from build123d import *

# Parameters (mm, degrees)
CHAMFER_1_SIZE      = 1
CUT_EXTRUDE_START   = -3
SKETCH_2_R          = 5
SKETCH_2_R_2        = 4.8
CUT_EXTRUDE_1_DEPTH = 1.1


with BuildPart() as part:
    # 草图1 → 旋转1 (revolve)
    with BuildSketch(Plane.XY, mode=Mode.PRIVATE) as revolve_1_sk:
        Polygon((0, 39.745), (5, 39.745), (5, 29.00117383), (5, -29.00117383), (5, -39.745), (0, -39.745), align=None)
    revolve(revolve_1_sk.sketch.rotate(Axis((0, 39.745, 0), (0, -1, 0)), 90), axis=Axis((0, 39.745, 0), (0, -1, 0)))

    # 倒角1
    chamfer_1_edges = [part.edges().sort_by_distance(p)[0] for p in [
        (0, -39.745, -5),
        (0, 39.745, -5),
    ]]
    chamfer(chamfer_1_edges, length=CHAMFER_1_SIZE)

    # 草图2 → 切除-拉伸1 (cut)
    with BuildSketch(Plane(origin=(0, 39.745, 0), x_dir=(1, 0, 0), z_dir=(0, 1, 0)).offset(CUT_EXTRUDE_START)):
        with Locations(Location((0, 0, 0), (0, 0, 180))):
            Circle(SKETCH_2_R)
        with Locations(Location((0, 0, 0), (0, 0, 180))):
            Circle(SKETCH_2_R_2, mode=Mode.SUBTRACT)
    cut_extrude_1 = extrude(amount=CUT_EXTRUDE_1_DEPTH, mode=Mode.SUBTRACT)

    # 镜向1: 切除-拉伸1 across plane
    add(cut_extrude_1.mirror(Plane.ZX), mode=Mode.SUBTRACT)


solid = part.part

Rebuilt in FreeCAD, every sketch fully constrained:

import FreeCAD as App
import Part
import Sketcher
Q = App.Units.Quantity


def edges_at(feature, points):
    """Names of the edges that pass closest to the given points."""
    edges = feature.Shape.Edges
    near = lambda p: min(range(len(edges)), key=lambda i: edges[i].distToShape(Part.Vertex(*p))[0])
    return sorted({f"Edge{near(p) + 1}" for p in points})

doc = App.newDocument("Part")
body = doc.addObject("PartDesign::Body", "Body")

# Sketch on XY plane
sketch1 = body.newObject("Sketcher::SketchObject", "Sketch")
sketch1.AttachmentSupport = (doc.getObject("XY_Plane"), [""])
sketch1.MapMode = "FlatFace"
sketch1.addGeometry([
    Part.LineSegment(App.Vector(5, 40, 0), App.Vector(0, 40, 0)),
    Part.LineSegment(App.Vector(0, 40, 0), App.Vector(0, -40, 0)),
    Part.LineSegment(App.Vector(0, -40, 0), App.Vector(5, -40, 0)),
    Part.LineSegment(App.Vector(5, -40, 0), App.Vector(5, 40, 0)),
], False)
sketch1.addConstraint([
    Sketcher.Constraint("Coincident", 0, 2, 1, 1),
    Sketcher.Constraint("Coincident", 1, 2, 2, 1),
    Sketcher.Constraint("Coincident", 2, 2, 3, 1),
    Sketcher.Constraint("Coincident", 3, 2, 0, 1),
    Sketcher.Constraint("Horizontal", 0),
    Sketcher.Constraint("Vertical", 1),
    Sketcher.Constraint("Horizontal", 2),
    Sketcher.Constraint("Vertical", 3),
    Sketcher.Constraint("Symmetric", 0, 2, 1, 2, -1, 1),
    Sketcher.Constraint("DistanceX", 0, 2, 0, 1, Q("5 mm")),
    Sketcher.Constraint("DistanceY", 1, 2, 1, 1, Q("79.49 mm")),
])
revolution = body.newObject("PartDesign::Revolution", "Revolution")
revolution.Profile = sketch1
revolution.ReferenceAxis = (sketch1, ["V_Axis"])
revolution.Angle = 360
doc.recompute()

chamfer = body.newObject("PartDesign::Chamfer", "Chamfer")
chamfer.Base = (revolution, edges_at(revolution, [(0, -39.745, -5), (0, 39.745, -5)]))
chamfer.Size = 1

# Sketch on XZ plane
sketch2 = body.newObject("Sketcher::SketchObject", "Sketch001")
sketch2.AttachmentSupport = (doc.getObject("XZ_Plane"), [""])
sketch2.MapMode = "FlatFace"
sketch2.AttachmentOffset = App.Placement(App.Vector(0, 0, -36.745), App.Rotation())
sketch2.addGeometry([
    Part.Circle(App.Vector(0, 0, 0), App.Vector(0, 0, 1), 5),
    Part.Circle(App.Vector(0, 0, 0), App.Vector(0, 0, 1), 4.8),
], False)
sketch2.addConstraint([
    Sketcher.Constraint("Coincident", 0, 3, -1, 1),
    Sketcher.Constraint("Coincident", 1, 3, -1, 1),
    Sketcher.Constraint("Diameter", 0, Q("10 mm")),
    Sketcher.Constraint("Diameter", 1, Q("9.6 mm")),
])
pocket1 = body.newObject("PartDesign::Pocket", "Pocket")
pocket1.Profile = sketch2
pocket1.Length = 1.1
doc.recompute()

mirrored = body.newObject("PartDesign::Mirrored", "Mirrored")
mirrored.Originals = [pocket1]
mirrored.MirrorPlane = (doc.getObject("XZ_Plane"), [""])
body.Tip = mirrored

doc.recompute()
